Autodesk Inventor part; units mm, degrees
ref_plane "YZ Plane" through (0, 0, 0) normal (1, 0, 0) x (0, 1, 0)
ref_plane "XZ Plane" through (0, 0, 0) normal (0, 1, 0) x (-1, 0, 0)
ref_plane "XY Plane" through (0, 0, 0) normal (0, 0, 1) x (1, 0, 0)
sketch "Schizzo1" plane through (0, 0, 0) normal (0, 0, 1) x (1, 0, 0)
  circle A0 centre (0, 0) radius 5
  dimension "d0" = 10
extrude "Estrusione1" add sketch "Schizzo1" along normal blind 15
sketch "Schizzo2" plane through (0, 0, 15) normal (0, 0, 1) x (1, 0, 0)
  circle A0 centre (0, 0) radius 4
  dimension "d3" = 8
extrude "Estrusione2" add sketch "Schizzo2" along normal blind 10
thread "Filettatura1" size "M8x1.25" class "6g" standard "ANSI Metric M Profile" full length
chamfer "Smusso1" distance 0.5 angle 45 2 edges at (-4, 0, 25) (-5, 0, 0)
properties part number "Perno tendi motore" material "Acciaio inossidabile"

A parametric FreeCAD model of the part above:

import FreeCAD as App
import Part
import Sketcher
from FreeCAD import Vector


def edges_at(feature, points):
    """Names of the edges that pass closest to the given points."""
    edges = feature.Shape.Edges
    near = lambda p: min(range(len(edges)), key=lambda i: edges[i].distToShape(Part.Vertex(*p))[0])
    return sorted({f"Edge{near(p) + 1}" for p in points})

doc = App.newDocument("Part")
body = doc.addObject("PartDesign::Body", "Body")

sketch1 = body.newObject("Sketcher::SketchObject", "Sketch")
sketch1.AttachmentSupport = (doc.getObject("XY_Plane"), [""])
sketch1.MapMode = "FlatFace"
sketch1.addGeometry(Part.Circle(Vector(0, 0, 0), Vector(0, 0, 1), 5), False)
sketch1.addConstraint(Sketcher.Constraint("Coincident", 0, 3, -1, 1))
sketch1.addConstraint(Sketcher.Constraint("Diameter", 0, 10.0))
pad1 = body.newObject("PartDesign::Pad", "Pad")
pad1.Profile = sketch1
pad1.Length = 15

sketch2 = body.newObject("Sketcher::SketchObject", "Sketch001")
sketch2.AttachmentSupport = (doc.getObject("XY_Plane"), [""])
sketch2.MapMode = "FlatFace"
sketch2.AttachmentOffset = App.Placement(Vector(0, 0, 15), App.Rotation())
sketch2.addGeometry(Part.Circle(Vector(0, 0, 0), Vector(0, 0, 1), 4), False)
sketch2.addConstraint(Sketcher.Constraint("Coincident", 0, 3, -1, 1))
sketch2.addConstraint(Sketcher.Constraint("Diameter", 0, 8.0))
pad2 = body.newObject("PartDesign::Pad", "Pad001")
pad2.Profile = sketch2
pad2.Length = 10
doc.recompute()

chamfer = body.newObject("PartDesign::Chamfer", "Chamfer")
chamfer.Base = (pad2, edges_at(pad2, [(-4, 0, 25), (-5, 0, 0)]))
chamfer.Size = 0.5

doc.recompute()
